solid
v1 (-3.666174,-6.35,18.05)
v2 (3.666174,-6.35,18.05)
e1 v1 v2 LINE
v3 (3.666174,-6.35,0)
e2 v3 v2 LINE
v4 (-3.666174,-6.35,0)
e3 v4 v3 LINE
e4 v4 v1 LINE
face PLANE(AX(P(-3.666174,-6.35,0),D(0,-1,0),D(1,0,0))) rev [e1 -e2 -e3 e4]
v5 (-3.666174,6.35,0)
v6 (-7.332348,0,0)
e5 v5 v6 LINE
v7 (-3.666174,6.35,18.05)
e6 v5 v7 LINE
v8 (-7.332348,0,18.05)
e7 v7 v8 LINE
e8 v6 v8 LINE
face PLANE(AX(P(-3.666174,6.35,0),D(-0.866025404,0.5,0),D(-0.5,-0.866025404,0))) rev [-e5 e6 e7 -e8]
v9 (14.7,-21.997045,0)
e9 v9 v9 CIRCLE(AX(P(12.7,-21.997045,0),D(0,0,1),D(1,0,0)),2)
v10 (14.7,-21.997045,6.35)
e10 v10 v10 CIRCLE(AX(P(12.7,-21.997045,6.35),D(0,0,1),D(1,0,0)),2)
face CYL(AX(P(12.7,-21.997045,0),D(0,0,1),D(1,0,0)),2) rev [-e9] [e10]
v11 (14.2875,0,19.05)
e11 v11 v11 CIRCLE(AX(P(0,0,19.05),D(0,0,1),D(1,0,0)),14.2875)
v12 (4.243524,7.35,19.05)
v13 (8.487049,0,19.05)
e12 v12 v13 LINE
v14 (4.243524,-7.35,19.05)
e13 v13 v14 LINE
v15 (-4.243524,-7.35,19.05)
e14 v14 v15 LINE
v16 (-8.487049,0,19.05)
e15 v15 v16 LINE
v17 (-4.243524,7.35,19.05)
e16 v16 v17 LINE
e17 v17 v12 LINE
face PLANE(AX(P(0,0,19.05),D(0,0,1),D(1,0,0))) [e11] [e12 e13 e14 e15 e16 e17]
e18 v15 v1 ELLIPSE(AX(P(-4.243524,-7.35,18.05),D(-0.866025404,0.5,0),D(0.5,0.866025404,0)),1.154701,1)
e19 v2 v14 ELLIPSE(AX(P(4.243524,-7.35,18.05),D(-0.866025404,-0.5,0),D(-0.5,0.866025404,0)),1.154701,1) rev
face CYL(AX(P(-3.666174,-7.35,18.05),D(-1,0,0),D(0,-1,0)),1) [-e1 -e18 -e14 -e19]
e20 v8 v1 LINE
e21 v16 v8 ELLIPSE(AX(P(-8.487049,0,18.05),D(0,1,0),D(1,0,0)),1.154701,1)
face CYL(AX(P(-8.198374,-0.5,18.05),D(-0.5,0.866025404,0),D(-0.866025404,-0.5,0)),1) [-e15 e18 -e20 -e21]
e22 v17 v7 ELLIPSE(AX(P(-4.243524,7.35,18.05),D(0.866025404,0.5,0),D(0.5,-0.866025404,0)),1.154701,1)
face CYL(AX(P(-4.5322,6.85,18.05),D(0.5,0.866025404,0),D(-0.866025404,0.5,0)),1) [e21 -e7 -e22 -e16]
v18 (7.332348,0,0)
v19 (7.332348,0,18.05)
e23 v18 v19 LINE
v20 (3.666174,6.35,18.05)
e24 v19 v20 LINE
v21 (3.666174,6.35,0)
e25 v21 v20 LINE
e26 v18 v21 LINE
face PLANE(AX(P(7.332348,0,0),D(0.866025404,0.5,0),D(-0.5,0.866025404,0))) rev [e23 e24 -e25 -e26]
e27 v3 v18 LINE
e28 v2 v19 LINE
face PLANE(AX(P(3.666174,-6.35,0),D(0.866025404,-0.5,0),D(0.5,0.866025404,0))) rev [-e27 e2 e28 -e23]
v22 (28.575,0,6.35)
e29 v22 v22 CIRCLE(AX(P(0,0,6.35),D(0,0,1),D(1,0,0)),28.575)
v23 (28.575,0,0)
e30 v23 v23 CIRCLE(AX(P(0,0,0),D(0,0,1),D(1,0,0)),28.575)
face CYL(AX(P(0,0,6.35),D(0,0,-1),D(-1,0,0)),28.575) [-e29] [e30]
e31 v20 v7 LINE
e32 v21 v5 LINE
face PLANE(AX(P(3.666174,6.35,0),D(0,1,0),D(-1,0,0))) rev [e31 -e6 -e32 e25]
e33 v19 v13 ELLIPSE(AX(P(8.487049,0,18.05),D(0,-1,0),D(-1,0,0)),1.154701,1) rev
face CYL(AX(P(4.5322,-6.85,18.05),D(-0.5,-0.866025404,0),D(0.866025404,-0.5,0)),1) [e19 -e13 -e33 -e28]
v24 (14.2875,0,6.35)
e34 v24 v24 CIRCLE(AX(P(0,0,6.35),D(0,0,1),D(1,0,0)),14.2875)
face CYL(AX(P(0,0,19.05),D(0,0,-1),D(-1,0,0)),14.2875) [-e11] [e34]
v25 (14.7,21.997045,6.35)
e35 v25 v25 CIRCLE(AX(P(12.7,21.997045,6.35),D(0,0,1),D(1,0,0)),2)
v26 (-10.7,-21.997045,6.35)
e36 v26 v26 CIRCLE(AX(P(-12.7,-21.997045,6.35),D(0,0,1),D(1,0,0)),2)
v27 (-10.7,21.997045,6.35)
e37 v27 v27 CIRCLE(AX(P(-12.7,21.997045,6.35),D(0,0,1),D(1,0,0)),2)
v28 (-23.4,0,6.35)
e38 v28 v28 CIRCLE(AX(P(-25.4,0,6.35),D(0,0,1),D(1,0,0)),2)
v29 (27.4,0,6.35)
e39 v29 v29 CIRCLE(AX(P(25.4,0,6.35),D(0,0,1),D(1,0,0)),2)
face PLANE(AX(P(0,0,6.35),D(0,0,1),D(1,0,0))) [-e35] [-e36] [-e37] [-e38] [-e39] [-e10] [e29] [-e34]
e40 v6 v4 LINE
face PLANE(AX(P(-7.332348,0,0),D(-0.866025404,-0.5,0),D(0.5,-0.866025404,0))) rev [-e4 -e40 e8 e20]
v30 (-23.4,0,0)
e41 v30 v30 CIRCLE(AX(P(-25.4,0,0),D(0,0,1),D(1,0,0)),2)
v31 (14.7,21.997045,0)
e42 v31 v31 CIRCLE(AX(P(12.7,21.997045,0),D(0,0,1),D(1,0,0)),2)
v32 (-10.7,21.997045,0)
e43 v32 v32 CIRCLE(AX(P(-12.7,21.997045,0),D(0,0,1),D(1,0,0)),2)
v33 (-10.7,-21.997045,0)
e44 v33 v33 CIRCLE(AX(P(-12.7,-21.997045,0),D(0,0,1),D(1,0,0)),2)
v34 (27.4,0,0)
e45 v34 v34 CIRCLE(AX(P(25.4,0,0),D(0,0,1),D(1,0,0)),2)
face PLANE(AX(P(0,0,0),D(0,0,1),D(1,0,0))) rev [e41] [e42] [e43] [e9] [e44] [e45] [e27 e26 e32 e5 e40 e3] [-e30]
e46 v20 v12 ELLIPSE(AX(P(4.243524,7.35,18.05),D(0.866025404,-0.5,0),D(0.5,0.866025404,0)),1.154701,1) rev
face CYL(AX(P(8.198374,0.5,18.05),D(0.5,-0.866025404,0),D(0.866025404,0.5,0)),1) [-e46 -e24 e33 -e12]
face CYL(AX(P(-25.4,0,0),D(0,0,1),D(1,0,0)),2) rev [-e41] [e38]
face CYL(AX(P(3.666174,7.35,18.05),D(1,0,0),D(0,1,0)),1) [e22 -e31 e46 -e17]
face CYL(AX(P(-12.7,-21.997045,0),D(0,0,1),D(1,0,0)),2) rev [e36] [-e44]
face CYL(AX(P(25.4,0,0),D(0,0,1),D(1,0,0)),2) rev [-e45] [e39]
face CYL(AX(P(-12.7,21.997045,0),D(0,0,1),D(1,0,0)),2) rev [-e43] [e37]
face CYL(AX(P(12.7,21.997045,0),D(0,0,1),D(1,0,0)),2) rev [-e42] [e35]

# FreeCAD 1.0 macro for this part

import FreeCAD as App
import Part
import Sketcher

V = App.Vector
Q = App.Units.Quantity


def edges_at(feature, points):
    """Names of the edges that pass closest to the given points."""
    edges = feature.Shape.Edges
    near = lambda p: min(range(len(edges)), key=lambda i: edges[i].distToShape(Part.Vertex(*p))[0])
    return sorted({f"Edge{near(p) + 1}" for p in points})

doc = App.newDocument("Part")
body = doc.addObject("PartDesign::Body", "Body")

sketch1 = doc.addObject("Sketcher::SketchObject", "Sketch")
body.addObject(sketch1)
sketch1.AttachmentSupport = (doc.XY_Plane, [""])
sketch1.MapMode = "FlatFace"
sketch1.addGeometry(Part.Circle(V(0, 0, 0), V(0, 0, 1), 29), False)
sketch1.addConstraint([
    Sketcher.Constraint("Coincident", 0, 3, -1, 1),
    Sketcher.Constraint("Diameter", 0, Q("2.25 in")),
])
pad1 = doc.addObject("PartDesign::Pad", "Pad")
body.addObject(pad1)
pad1.Profile = sketch1
pad1.Length = Q("0.25 in")

sketch2 = doc.addObject("Sketcher::SketchObject", "Sketch001")
body.addObject(sketch2)
sketch2.AttachmentSupport = (doc.XY_Plane, [""])
sketch2.MapMode = "FlatFace"
sketch2.AttachmentOffset = App.Placement(V(0, 0, 0.25 * 25.4), App.Rotation())
sketch2.addGeometry(Part.Circle(V(0, 0, 0), V(0, 0, 1), 14), False)
sketch2.addConstraint([
    Sketcher.Constraint("Coincident", 0, 3, -1, 1),
    Sketcher.Constraint("Diameter", 0, Q("1.125 in")),
])
pad2 = doc.addObject("PartDesign::Pad", "Pad001")
body.addObject(pad2)
pad2.Profile = sketch2
pad2.Length = Q("0.5 in")

sketch3 = doc.addObject("Sketcher::SketchObject", "Sketch002")
body.addObject(sketch3)
sketch3.AttachmentSupport = (doc.XY_Plane, [""])
sketch3.MapMode = "FlatFace"
sketch3.AttachmentOffset = App.Placement(V(0, 0, 0.75 * 25.4), App.Rotation())
sketch3.addGeometry([
    Part.LineSegment(V(7, 0, 0), V(4, 6, 0)),
    Part.LineSegment(V(4, 6, 0), V(-4, 6, 0)),
    Part.LineSegment(V(-4, 6, 0), V(-7, 0, 0)),
    Part.LineSegment(V(-7, 0, 0), V(-4, -6, 0)),
    Part.LineSegment(V(-4, -6, 0), V(4, -6, 0)),
    Part.LineSegment(V(4, -6, 0), V(7, 0, 0)),
], False)
sketch3.addConstraint([
    Sketcher.Constraint("Coincident", 0, 2, 1, 1),
    Sketcher.Constraint("Coincident", 1, 2, 2, 1),
    Sketcher.Constraint("Coincident", 2, 2, 3, 1),
    Sketcher.Constraint("Coincident", 3, 2, 4, 1),
    Sketcher.Constraint("Coincident", 4, 2, 5, 1),
    Sketcher.Constraint("Coincident", 5, 2, 0, 1),
    Sketcher.Constraint("Horizontal", 1),
    Sketcher.Constraint("Horizontal", 4),
    Sketcher.Constraint("Symmetric", 0, 2, 3, 2, -1, 1),
    Sketcher.Constraint("Symmetric", 2, 2, 5, 2, -1, 1),
    Sketcher.Constraint("PointOnObject", 2, 2, -1),
    Sketcher.Constraint("Parallel", 2, 5),
    Sketcher.Constraint("Vertical", 1, 2, 3, 2),
    Sketcher.Constraint("Angle", 0, Q("120 deg")),
    Sketcher.Constraint("DistanceY", 3, 2, 1, 2, Q("0.5 in")),
    Sketcher.Constraint("DistanceX", 1, 2, 1, 1, 7.332348),
])
pocket1 = doc.addObject("PartDesign::Pocket", "Pocket")
body.addObject(pocket1)
pocket1.Profile = sketch3
pocket1.Type = "ThroughAll"

sketch4 = doc.addObject("Sketcher::SketchObject", "Sketch003")
body.addObject(sketch4)
sketch4.AttachmentSupport = (doc.XY_Plane, [""])
sketch4.MapMode = "FlatFace"
sketch4.AttachmentOffset = App.Placement(V(0, 0, 0.25 * 25.4), App.Rotation())
sketch4.addGeometry([
    Part.Circle(V(25.4, 0, 0), V(0, 0, 1), 2),
    Part.Circle(V(12.7, -22, 0), V(0, 0, 1), 2),
    Part.Circle(V(-12.7, -22, 0), V(0, 0, 1), 2),
    Part.Circle(V(-25.4, 0, 0), V(0, 0, 1), 2),
    Part.Circle(V(-12.7, 22, 0), V(0, 0, 1), 2),
    Part.Circle(V(12.7, 22, 0), V(0, 0, 1), 2),
], False)
sketch4.addConstraint([
    Sketcher.Constraint("Equal", 0, 1),
    Sketcher.Constraint("Equal", 1, 2),
    Sketcher.Constraint("Equal", 2, 3),
    Sketcher.Constraint("Equal", 3, 4),
    Sketcher.Constraint("Equal", 4, 5),
    Sketcher.Constraint("Symmetric", 0, 3, 3, 3, -1, 1),
    Sketcher.Constraint("Symmetric", 1, 3, 4, 3, -1, 1),
    Sketcher.Constraint("Symmetric", 2, 3, 5, 3, -1, 1),
    Sketcher.Constraint("Symmetric", 1, 3, 2, 3, -2),
    Sketcher.Constraint("PointOnObject", 0, 3, -1),
    Sketcher.Constraint("DistanceX", -1, 1, 0, 3, Q("1 in")),
    Sketcher.Constraint("DistanceX", 2, 3, 1, 3, Q("1 in")),
    Sketcher.Constraint("Diameter", 0, 4.0),
    Sketcher.Constraint("DistanceY", 2, 3, 4, 3, 43.994091),
])
pocket2 = doc.addObject("PartDesign::Pocket", "Pocket001")
body.addObject(pocket2)
pocket2.Profile = sketch4
pocket2.Type = "ThroughAll"
doc.recompute()

fillet = doc.addObject("PartDesign::Fillet", "Fillet")
body.addObject(fillet)
fillet.Base = (pocket2, edges_at(pocket2, [
    (5.499, -3.175, 19.05),
    (5.499, 3.175, 19.05),
    (0, 6.35, 19.05),
    (-5.499, 3.175, 19.05),
    (-5.499, -3.175, 19.05),
    (0, -6.35, 19.05),
]))
fillet.Radius = 1

doc.recompute()
